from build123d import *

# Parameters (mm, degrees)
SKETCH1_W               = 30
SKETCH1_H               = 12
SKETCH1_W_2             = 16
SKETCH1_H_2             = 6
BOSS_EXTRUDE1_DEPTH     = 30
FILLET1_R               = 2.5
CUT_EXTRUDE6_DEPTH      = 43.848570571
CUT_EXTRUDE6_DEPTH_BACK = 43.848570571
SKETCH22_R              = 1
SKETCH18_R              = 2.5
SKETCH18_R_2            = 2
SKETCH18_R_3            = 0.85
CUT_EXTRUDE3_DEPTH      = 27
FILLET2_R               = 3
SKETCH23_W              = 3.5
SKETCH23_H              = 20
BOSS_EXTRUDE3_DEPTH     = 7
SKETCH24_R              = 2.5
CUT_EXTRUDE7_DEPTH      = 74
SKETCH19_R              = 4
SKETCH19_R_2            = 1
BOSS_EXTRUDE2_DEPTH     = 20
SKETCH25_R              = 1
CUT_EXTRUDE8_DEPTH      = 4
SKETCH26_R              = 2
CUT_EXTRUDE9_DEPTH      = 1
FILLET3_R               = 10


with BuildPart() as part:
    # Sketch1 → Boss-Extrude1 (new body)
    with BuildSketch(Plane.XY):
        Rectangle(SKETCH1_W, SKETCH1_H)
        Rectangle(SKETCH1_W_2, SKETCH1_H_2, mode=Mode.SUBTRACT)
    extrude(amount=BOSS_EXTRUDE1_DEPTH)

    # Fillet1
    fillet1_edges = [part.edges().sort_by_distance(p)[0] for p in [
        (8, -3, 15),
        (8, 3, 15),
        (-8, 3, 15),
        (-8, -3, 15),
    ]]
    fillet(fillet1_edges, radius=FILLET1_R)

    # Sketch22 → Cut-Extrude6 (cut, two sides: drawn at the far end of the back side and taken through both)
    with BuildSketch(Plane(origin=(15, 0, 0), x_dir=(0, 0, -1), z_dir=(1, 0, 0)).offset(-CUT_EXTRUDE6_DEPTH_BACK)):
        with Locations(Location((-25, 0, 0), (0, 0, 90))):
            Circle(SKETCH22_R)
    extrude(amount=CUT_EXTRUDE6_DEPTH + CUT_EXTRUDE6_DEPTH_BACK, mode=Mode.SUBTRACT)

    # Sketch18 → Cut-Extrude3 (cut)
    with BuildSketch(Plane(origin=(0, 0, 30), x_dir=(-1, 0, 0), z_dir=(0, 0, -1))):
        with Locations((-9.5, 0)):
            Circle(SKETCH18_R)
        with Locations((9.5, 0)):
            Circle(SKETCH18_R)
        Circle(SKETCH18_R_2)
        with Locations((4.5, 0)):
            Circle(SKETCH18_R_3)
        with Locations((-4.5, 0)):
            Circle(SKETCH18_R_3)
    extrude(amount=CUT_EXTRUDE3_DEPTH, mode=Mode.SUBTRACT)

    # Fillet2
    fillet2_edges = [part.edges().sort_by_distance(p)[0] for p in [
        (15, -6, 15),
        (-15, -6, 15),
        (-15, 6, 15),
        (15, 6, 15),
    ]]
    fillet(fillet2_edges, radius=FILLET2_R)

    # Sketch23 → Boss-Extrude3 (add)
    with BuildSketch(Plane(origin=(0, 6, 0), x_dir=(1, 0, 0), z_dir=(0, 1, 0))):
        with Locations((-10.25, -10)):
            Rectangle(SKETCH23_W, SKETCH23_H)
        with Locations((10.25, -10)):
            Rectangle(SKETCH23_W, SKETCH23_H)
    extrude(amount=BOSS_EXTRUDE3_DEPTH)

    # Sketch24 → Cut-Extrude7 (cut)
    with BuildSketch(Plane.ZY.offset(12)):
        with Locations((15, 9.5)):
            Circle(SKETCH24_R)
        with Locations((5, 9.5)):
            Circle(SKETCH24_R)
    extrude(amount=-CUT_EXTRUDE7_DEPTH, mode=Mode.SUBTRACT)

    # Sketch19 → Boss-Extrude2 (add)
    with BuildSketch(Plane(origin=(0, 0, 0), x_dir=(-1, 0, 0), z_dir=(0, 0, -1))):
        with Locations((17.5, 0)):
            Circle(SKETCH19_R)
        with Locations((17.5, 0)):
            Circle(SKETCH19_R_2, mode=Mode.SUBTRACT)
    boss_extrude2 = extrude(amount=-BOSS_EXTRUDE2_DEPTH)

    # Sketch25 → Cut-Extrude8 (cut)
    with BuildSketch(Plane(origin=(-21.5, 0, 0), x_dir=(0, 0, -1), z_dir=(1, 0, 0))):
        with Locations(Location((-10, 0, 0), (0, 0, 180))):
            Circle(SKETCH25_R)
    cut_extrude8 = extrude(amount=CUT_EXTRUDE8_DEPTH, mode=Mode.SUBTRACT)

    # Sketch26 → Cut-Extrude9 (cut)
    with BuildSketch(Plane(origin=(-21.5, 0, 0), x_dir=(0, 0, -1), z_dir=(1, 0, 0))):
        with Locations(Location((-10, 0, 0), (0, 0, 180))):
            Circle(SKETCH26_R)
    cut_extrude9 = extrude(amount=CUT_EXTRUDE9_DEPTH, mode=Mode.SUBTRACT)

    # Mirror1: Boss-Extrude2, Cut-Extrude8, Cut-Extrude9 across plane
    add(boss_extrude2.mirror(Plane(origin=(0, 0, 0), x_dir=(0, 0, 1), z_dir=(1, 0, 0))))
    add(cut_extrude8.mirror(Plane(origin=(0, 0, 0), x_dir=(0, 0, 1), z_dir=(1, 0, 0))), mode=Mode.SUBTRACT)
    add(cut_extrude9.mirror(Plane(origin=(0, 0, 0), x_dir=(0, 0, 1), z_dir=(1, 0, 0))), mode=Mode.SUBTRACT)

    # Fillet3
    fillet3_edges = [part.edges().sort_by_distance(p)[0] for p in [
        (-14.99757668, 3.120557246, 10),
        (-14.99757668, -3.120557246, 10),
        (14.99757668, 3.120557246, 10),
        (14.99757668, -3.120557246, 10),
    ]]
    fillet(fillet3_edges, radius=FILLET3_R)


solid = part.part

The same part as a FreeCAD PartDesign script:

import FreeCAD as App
import Part
import Sketcher
from FreeCAD import Vector


def edges_at(feature, points):
    """Names of the edges that pass closest to the given points."""
    edges = feature.Shape.Edges
    near = lambda p: min(range(len(edges)), key=lambda i: edges[i].distToShape(Part.Vertex(*p))[0])
    return sorted({f"Edge{near(p) + 1}" for p in points})


def add_polygon(sketch, points):
    """Adds a closed chain of lines whose ends are joined by coincident constraints."""
    first, n = sketch.GeometryCount, len(points)
    for a, b in zip(points, points[1:] + points[:1]):
        sketch.addGeometry(Part.LineSegment(App.Vector(*a, 0), App.Vector(*b, 0)), False)
    for i in range(n):
        sketch.addConstraint(Sketcher.Constraint("Coincident", first + i, 2, first + (i + 1) % n, 1))

doc = App.newDocument("Part")
body = doc.addObject("PartDesign::Body", "Body")

# Sketch on XY plane
sketch1 = body.newObject("Sketcher::SketchObject", "Sketch")
sketch1.AttachmentSupport = (doc.getObject("XY_Plane"), [""])
sketch1.MapMode = "FlatFace"
add_polygon(sketch1, [(-15, 6), (-15, -6), (15, -6), (15, 6)])  # lines 0-3
add_polygon(sketch1, [(8, -3), (-8, -3), (-8, 3), (8, 3)])  # lines 4-7
sketch1.addConstraint([
    Sketcher.Constraint("Vertical", 0),
    Sketcher.Constraint("Horizontal", 1),
    Sketcher.Constraint("Vertical", 2),
    Sketcher.Constraint("Horizontal", 3),
    Sketcher.Constraint("Horizontal", 4),
    Sketcher.Constraint("Vertical", 5),
    Sketcher.Constraint("Horizontal", 6),
    Sketcher.Constraint("Vertical", 7),
    Sketcher.Constraint("Symmetric", 0, 2, 2, 2, -1, 1),
    Sketcher.Constraint("Symmetric", 4, 2, 6, 2, -1, 1),
    Sketcher.Constraint("DistanceX", 1, 1, 1, 2, 30.0),
    Sketcher.Constraint("DistanceX", 4, 2, 4, 1, 16.0),
    Sketcher.Constraint("DistanceY", 0, 2, 0, 1, 12.0),
    Sketcher.Constraint("DistanceY", 5, 1, 5, 2, 6.0),
])
pad1 = body.newObject("PartDesign::Pad", "Pad")
pad1.Profile = sketch1
pad1.Length = 30
doc.recompute()

fillet = body.newObject("PartDesign::Fillet", "Fillet")
fillet.Base = (pad1, edges_at(pad1, [
    (8, -3, 15),
    (8, 3, 15),
    (-8, 3, 15),
    (-8, -3, 15),
]))
fillet.Radius = 2.5

# Sketch on YZ plane
sketch2 = body.newObject("Sketcher::SketchObject", "Sketch001")
sketch2.AttachmentSupport = (doc.getObject("YZ_Plane"), [""])
sketch2.MapMode = "FlatFace"
sketch2.AttachmentOffset = App.Placement(Vector(0, 0, 15), App.Rotation())
sketch2.addGeometry(Part.Circle(Vector(0, 25, 0), Vector(0, 0, 1), 1), False)
sketch2.addConstraint([
    Sketcher.Constraint("PointOnObject", 0, 3, -2),
    Sketcher.Constraint("Diameter", 0, 2.0),
    Sketcher.Constraint("DistanceY", -1, 1, 0, 3, 25.0),
])
pocket1 = body.newObject("PartDesign::Pocket", "Pocket")
pocket1.Profile = sketch2
pocket1.Type = "ThroughAll"
pocket1.Midplane = True

# Sketch on XY plane
sketch3 = body.newObject("Sketcher::SketchObject", "Sketch002")
sketch3.AttachmentSupport = (doc.getObject("XY_Plane"), [""])
sketch3.MapMode = "FlatFace"
sketch3.AttachmentOffset = App.Placement(Vector(0, 0, 30), App.Rotation())
sketch3.addGeometry([
    Part.Circle(Vector(9.5, 0, 0), Vector(0, 0, 1), 2.5),  # 0
    Part.Circle(Vector(-9.5, 0, 0), Vector(0, 0, 1), 2.5),  # 1
    Part.Circle(Vector(0, 0, 0), Vector(0, 0, 1), 2),  # 2
    Part.Circle(Vector(-4.5, 0, 0), Vector(0, 0, 1), 0.85),  # 3
    Part.Circle(Vector(4.5, 0, 0), Vector(0, 0, 1), 0.85),  # 4
], False)
sketch3.addConstraint([
    Sketcher.Constraint("Coincident", 2, 3, -1, 1),
    Sketcher.Constraint("Equal", 0, 1),
    Sketcher.Constraint("Equal", 3, 4),
    Sketcher.Constraint("Symmetric", 0, 3, 1, 3, -1, 1),
    Sketcher.Constraint("Symmetric", 3, 3, 4, 3, -1, 1),
    Sketcher.Constraint("PointOnObject", 0, 3, -1),
    Sketcher.Constraint("PointOnObject", 3, 3, -1),
    Sketcher.Constraint("Diameter", 0, 5.0),
    Sketcher.Constraint("Diameter", 2, 4.0),
    Sketcher.Constraint("Diameter", 3, 1.7),
    Sketcher.Constraint("DistanceX", 1, 3, 0, 3, 19.0),
    Sketcher.Constraint("DistanceX", 1, 3, 3, 3, 5.0),
])
pocket2 = body.newObject("PartDesign::Pocket", "Pocket001")
pocket2.Profile = sketch3
pocket2.Length = 27
doc.recompute()

fillet2 = body.newObject("PartDesign::Fillet", "Fillet001")
fillet2.Base = (pocket2, edges_at(pocket2, [
    (15, -6, 15),
    (-15, -6, 15),
    (-15, 6, 15),
    (15, 6, 15),
]))
fillet2.Radius = 3

# Sketch on XZ plane
sketch4 = body.newObject("Sketcher::SketchObject", "Sketch003")
sketch4.AttachmentSupport = (doc.getObject("XZ_Plane"), [""])
sketch4.MapMode = "FlatFace"
sketch4.AttachmentOffset = App.Placement(Vector(0, 0, -6), App.Rotation())
add_polygon(sketch4, [(-12, 0), (-12, 20), (-8.5, 20), (-8.5, 0)])  # lines 0-3
add_polygon(sketch4, [(8.5, 0), (8.5, 20), (12, 20), (12, 0)])  # lines 4-7
sketch4.addConstraint([
    Sketcher.Constraint("Vertical", 0),
    Sketcher.Constraint("Horizontal", 1),
    Sketcher.Constraint("Vertical", 2),
    Sketcher.Constraint("Horizontal", 3),
    Sketcher.Constraint("Vertical", 4),
    Sketcher.Constraint("Horizontal", 5),
    Sketcher.Constraint("Vertical", 6),
    Sketcher.Constraint("Horizontal", 7),
    Sketcher.Constraint("Symmetric", 3, 2, 6, 2, -1, 1),
    Sketcher.Constraint("Symmetric", 1, 2, 4, 2, -2),
    Sketcher.Constraint("PointOnObject", 2, 2, -1),
    Sketcher.Constraint("DistanceY", 0, 1, 0, 2, 20.0),
    Sketcher.Constraint("DistanceX", 1, 1, 1, 2, 3.5),
    Sketcher.Constraint("DistanceX", 0, 2, -1, 1, 12.0),
])
pad2 = body.newObject("PartDesign::Pad", "Pad001")
pad2.Profile = sketch4
pad2.Length = 7
pad2.Reversed = True

# Sketch on YZ plane
sketch5 = body.newObject("Sketcher::SketchObject", "Sketch004")
sketch5.AttachmentSupport = (doc.getObject("YZ_Plane"), [""])
sketch5.MapMode = "FlatFace"
sketch5.AttachmentOffset = App.Placement(Vector(0, 0, -12), App.Rotation())
sketch5.addGeometry([
    Part.Circle(Vector(9.5, 15, 0), Vector(0, 0, 1), 2.5),
    Part.Circle(Vector(9.5, 5, 0), Vector(0, 0, 1), 2.5),
], False)
sketch5.addConstraint([
    Sketcher.Constraint("Equal", 0, 1),
    Sketcher.Constraint("Vertical", 0, 3, 1, 3),
    Sketcher.Constraint("Diameter", 0, 5.0),
    Sketcher.Constraint("DistanceY", -1, 1, 0, 3, 15.0),
    Sketcher.Constraint("DistanceY", -1, 1, 1, 3, 5.0),
    Sketcher.Constraint("DistanceX", -1, 1, 0, 3, 9.5),
])
pocket3 = body.newObject("PartDesign::Pocket", "Pocket002")
pocket3.Profile = sketch5
pocket3.Length = 74
pocket3.Reversed = True

# Sketch on XY plane
sketch6 = body.newObject("Sketcher::SketchObject", "Sketch005")
sketch6.AttachmentSupport = (doc.getObject("XY_Plane"), [""])
sketch6.MapMode = "FlatFace"
sketch6.addGeometry([
    Part.Circle(Vector(-17.5, 0, 0), Vector(0, 0, 1), 4),
    Part.Circle(Vector(-17.5, 0, 0), Vector(0, 0, 1), 1),
], False)
sketch6.addConstraint([
    Sketcher.Constraint("Coincident", 1, 3, 0, 3),
    Sketcher.Constraint("PointOnObject", 0, 3, -1),
    Sketcher.Constraint("Diameter", 0, 8.0),
    Sketcher.Constraint("Diameter", 1, 2.0),
    Sketcher.Constraint("DistanceX", 0, 3, -1, 1, 17.5),
])
pad3 = body.newObject("PartDesign::Pad", "Pad002")
pad3.Profile = sketch6
pad3.Length = 20

# Sketch on YZ plane
sketch7 = body.newObject("Sketcher::SketchObject", "Sketch006")
sketch7.AttachmentSupport = (doc.getObject("YZ_Plane"), [""])
sketch7.MapMode = "FlatFace"
sketch7.AttachmentOffset = App.Placement(Vector(0, 0, -21.5), App.Rotation())
sketch7.addGeometry(Part.Circle(Vector(0, 10, 0), Vector(0, 0, 1), 1), False)
sketch7.addConstraint([
    Sketcher.Constraint("PointOnObject", 0, 3, -2),
    Sketcher.Constraint("Diameter", 0, 2.0),
    Sketcher.Constraint("DistanceY", -1, 1, 0, 3, 10.0),
])
pocket4 = body.newObject("PartDesign::Pocket", "Pocket003")
pocket4.Profile = sketch7
pocket4.Length = 4
pocket4.Reversed = True

# Sketch on YZ plane
sketch8 = body.newObject("Sketcher::SketchObject", "Sketch007")
sketch8.AttachmentSupport = (doc.getObject("YZ_Plane"), [""])
sketch8.MapMode = "FlatFace"
sketch8.AttachmentOffset = App.Placement(Vector(0, 0, -21.5), App.Rotation())
sketch8.addGeometry(Part.Circle(Vector(0, 10, 0), Vector(0, 0, 1), 2), False)
sketch8.addConstraint([
    Sketcher.Constraint("PointOnObject", 0, 3, -2),
    Sketcher.Constraint("Diameter", 0, 4.0),
    Sketcher.Constraint("DistanceY", -1, 1, 0, 3, 10.0),
])
pocket5 = body.newObject("PartDesign::Pocket", "Pocket004")
pocket5.Profile = sketch8
pocket5.Length = 1
pocket5.Reversed = True
doc.recompute()

mirrored = body.newObject("PartDesign::Mirrored", "Mirrored")
mirrored.Originals = [pad3, pocket4, pocket5]
mirrored.MirrorPlane = (doc.getObject("YZ_Plane"), [""])
body.Tip = mirrored
doc.recompute()

fillet3 = body.newObject("PartDesign::Fillet", "Fillet002")
fillet3.Base = (mirrored, edges_at(mirrored, [
    (-14.998, 3.121, 10),
    (-14.998, -3.121, 10),
    (14.998, 3.121, 10),
    (14.998, -3.121, 10),
]))
fillet3.Radius = 10

doc.recompute()
